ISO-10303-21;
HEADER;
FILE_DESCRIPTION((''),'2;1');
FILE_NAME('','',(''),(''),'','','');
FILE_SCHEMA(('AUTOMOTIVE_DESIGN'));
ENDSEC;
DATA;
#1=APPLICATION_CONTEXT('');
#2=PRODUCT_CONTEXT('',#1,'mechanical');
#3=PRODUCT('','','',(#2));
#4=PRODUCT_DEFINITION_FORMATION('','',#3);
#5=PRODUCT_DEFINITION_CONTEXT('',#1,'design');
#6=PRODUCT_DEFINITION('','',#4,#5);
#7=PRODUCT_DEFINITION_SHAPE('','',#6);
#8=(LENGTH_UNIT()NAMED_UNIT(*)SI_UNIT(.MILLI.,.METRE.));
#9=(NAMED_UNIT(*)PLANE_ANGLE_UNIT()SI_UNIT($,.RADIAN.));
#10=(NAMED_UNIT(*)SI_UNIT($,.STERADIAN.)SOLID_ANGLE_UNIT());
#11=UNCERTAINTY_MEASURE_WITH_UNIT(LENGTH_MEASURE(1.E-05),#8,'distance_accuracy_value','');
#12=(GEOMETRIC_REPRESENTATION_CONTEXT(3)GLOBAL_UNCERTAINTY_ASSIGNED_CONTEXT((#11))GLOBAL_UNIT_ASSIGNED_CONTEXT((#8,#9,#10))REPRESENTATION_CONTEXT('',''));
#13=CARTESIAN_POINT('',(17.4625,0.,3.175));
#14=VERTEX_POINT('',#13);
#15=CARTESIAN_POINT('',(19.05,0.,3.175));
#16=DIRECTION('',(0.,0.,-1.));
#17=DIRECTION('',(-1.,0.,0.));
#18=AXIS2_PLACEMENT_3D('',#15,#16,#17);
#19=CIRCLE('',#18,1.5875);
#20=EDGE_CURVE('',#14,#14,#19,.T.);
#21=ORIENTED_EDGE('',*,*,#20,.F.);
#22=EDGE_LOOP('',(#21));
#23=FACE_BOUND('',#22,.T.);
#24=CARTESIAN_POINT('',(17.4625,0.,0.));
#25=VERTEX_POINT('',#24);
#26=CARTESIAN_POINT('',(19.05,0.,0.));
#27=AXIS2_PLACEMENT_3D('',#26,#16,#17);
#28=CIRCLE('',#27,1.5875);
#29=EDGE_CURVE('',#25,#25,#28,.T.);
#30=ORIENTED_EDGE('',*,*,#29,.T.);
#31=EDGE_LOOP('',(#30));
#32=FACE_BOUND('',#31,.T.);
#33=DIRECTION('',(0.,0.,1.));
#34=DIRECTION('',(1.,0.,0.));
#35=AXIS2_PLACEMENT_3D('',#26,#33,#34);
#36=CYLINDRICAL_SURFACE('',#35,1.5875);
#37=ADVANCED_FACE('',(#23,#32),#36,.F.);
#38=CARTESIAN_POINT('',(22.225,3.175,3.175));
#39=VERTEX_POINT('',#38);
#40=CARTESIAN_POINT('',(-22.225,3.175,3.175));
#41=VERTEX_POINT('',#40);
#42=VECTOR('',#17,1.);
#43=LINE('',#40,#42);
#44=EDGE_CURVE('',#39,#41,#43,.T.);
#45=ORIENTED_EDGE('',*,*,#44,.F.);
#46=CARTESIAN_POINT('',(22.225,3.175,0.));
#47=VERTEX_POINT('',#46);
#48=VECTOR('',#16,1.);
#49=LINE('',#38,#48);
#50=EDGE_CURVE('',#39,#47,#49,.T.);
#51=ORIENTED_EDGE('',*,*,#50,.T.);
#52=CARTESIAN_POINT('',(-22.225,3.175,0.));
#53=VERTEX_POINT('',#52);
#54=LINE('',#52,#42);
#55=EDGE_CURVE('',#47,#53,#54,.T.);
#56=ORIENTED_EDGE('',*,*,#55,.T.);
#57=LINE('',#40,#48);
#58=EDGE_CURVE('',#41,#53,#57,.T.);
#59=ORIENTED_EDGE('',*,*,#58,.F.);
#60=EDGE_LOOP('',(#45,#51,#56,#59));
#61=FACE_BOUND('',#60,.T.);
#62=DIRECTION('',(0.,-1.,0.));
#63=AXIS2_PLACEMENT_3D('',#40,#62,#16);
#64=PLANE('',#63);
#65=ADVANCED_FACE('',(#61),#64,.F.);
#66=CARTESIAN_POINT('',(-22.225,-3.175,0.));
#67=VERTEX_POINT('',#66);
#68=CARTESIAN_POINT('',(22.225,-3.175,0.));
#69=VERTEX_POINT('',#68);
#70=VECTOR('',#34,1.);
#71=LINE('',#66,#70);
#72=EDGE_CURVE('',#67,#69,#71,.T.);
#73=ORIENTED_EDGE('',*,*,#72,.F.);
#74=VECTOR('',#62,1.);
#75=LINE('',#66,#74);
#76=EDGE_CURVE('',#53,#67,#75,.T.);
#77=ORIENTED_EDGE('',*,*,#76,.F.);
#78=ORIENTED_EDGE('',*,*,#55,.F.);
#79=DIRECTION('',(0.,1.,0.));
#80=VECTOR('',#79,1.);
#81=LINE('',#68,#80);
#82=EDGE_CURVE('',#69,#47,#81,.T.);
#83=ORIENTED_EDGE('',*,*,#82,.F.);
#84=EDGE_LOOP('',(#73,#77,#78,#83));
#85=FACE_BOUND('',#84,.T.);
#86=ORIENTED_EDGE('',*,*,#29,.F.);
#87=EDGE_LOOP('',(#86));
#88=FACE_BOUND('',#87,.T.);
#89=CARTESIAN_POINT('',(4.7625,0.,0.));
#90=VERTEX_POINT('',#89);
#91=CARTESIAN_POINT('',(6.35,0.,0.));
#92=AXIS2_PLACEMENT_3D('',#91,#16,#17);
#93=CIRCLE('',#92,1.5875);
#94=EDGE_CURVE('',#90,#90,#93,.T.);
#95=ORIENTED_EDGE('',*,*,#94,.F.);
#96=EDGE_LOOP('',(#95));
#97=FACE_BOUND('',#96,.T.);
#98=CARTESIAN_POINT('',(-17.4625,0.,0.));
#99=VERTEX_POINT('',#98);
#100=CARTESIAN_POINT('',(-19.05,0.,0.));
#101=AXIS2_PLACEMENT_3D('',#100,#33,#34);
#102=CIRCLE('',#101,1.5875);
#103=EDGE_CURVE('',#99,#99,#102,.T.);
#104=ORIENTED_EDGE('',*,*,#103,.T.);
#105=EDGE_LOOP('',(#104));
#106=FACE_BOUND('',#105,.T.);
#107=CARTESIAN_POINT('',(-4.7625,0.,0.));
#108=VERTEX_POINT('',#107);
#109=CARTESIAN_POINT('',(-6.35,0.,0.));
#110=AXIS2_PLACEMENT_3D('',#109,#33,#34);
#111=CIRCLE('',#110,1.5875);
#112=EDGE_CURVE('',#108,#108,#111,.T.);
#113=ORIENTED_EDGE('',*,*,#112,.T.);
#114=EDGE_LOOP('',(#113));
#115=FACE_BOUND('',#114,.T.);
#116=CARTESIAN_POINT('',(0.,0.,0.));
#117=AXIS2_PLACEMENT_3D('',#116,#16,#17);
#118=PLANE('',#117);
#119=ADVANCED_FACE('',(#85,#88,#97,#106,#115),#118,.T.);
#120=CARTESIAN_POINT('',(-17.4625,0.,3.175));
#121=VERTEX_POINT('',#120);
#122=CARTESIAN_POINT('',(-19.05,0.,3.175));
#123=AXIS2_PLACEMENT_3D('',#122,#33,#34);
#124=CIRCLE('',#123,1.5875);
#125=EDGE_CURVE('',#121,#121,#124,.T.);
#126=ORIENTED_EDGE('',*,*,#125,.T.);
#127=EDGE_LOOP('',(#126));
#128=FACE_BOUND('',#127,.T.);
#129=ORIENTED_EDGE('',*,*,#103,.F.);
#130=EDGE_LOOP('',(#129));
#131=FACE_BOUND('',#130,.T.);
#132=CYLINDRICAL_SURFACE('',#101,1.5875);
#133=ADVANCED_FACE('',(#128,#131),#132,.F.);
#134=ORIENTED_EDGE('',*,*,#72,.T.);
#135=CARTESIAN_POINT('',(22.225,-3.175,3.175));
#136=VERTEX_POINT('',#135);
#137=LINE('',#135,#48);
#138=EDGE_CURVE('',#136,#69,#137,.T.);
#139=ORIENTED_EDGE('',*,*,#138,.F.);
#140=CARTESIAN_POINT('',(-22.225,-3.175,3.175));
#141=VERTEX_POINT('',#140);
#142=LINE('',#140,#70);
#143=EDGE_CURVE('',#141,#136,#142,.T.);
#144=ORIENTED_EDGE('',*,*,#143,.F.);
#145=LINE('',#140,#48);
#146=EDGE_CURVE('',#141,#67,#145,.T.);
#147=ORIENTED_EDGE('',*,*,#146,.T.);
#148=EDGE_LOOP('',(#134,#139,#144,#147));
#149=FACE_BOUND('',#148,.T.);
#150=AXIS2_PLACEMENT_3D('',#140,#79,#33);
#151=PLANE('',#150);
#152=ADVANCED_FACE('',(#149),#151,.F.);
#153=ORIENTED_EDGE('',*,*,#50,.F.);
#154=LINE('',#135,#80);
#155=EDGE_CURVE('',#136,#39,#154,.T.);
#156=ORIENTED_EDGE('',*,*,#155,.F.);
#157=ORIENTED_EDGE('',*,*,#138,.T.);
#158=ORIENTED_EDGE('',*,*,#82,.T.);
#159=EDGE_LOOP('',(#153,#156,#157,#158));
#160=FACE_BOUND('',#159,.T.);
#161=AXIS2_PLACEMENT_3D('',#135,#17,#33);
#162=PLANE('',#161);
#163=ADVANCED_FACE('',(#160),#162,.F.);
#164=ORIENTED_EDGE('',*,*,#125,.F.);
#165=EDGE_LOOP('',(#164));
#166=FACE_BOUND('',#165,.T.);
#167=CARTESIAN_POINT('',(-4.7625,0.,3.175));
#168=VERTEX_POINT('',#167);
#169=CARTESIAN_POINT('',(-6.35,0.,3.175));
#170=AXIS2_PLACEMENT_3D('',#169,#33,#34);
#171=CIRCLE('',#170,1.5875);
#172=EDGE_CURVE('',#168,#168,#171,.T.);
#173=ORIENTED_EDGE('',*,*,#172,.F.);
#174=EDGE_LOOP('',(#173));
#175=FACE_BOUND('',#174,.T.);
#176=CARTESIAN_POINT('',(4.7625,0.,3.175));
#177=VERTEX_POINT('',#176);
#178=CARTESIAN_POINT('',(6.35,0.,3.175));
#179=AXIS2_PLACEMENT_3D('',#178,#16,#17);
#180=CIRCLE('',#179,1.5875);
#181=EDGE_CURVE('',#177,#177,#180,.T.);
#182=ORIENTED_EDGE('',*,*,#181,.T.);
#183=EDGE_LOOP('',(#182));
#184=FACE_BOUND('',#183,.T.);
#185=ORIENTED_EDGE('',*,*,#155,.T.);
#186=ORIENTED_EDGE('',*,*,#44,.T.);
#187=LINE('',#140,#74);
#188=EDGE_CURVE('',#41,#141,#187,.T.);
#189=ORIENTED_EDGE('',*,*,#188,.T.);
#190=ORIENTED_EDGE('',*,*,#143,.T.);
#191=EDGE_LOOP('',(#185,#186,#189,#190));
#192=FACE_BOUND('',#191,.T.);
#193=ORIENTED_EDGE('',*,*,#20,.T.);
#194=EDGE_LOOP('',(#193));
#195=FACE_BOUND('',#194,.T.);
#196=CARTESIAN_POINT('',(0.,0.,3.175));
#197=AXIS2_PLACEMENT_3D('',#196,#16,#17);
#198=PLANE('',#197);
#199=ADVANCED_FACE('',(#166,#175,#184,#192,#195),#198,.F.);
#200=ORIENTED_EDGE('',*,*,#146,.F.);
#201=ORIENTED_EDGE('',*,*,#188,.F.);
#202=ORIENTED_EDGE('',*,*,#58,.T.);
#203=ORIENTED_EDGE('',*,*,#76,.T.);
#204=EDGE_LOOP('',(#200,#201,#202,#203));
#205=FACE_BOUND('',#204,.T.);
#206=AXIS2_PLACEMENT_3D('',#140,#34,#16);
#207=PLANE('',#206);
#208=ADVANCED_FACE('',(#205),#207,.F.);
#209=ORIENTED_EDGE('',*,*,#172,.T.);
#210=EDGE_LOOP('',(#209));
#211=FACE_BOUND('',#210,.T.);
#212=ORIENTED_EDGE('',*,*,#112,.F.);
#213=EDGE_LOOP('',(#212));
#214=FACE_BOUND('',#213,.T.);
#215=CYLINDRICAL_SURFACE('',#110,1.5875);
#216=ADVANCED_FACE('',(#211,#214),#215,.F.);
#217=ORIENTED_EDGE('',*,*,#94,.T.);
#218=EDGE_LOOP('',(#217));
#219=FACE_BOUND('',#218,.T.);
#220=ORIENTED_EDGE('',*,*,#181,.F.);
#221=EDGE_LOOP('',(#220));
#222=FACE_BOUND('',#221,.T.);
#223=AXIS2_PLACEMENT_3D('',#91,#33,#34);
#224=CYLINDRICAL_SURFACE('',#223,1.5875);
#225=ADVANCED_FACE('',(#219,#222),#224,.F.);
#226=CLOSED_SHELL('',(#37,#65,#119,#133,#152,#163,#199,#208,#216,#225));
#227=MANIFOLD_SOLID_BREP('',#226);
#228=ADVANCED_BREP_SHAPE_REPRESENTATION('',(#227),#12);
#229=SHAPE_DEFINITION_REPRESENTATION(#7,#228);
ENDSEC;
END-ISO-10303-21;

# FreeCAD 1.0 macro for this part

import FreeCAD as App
import Part
import Sketcher
from FreeCAD import Vector
Q = App.Units.Quantity


def add_polygon(sketch, points):
    """Adds a closed chain of lines whose ends are joined by coincident constraints."""
    first, n = sketch.GeometryCount, len(points)
    for a, b in zip(points, points[1:] + points[:1]):
        sketch.addGeometry(Part.LineSegment(App.Vector(*a, 0), App.Vector(*b, 0)), False)
    for i in range(n):
        sketch.addConstraint(Sketcher.Constraint("Coincident", first + i, 2, first + (i + 1) % n, 1))

doc = App.newDocument("Part")
body = doc.addObject("PartDesign::Body", "Body")

sketch1 = body.newObject("Sketcher::SketchObject", "Sketch")
sketch1.AttachmentSupport = (doc.getObject("XY_Plane"), [""])
sketch1.MapMode = "FlatFace"
add_polygon(sketch1, [(-22, 3), (-22, -3), (22, -3), (22, 3)])
sketch1.addConstraint(Sketcher.Constraint("Vertical", 0))
sketch1.addConstraint(Sketcher.Constraint("Horizontal", 1))
sketch1.addConstraint(Sketcher.Constraint("Vertical", 2))
sketch1.addConstraint(Sketcher.Constraint("Horizontal", 3))
sketch1.addConstraint(Sketcher.Constraint("Symmetric", 0, 2, 2, 2, -1, 1))
sketch1.addConstraint(Sketcher.Constraint("DistanceX", 1, 1, 1, 2, Q("1.75 in")))
sketch1.addConstraint(Sketcher.Constraint("DistanceY", 0, 2, 0, 1, Q("0.25 in")))
pad1 = body.newObject("PartDesign::Pad", "Pad")
pad1.Profile = sketch1
pad1.Length = Q("0.125 in")

sketch2 = body.newObject("Sketcher::SketchObject", "Sketch001")
sketch2.AttachmentSupport = (doc.getObject("XY_Plane"), [""])
sketch2.MapMode = "FlatFace"
sketch2.AttachmentOffset = App.Placement(Vector(0, 0, 0.125 * 25.4), App.Rotation())
sketch2.addGeometry(Part.Circle(Vector(-6.3, 0, 0), Vector(0, 0, 1), 1.6), False)
sketch2.addGeometry(Part.Circle(Vector(-19.1, 0, 0), Vector(0, 0, 1), 1.6), False)
sketch2.addConstraint(Sketcher.Constraint("Equal", 0, 1))
sketch2.addConstraint(Sketcher.Constraint("PointOnObject", 0, 3, -1))
sketch2.addConstraint(Sketcher.Constraint("PointOnObject", 1, 3, -1))
sketch2.addConstraint(Sketcher.Constraint("Diameter", 0, Q("0.125 in")))
sketch2.addConstraint(Sketcher.Constraint("DistanceX", 1, 3, 0, 3, Q("0.5 in")))
sketch2.addConstraint(Sketcher.Constraint("DistanceX", 0, 3, -1, 1, Q("0.25 in")))
pocket1 = body.newObject("PartDesign::Pocket", "Pocket")
pocket1.Profile = sketch2
pocket1.Type = "ThroughAll"
doc.recompute()

mirrored = body.newObject("PartDesign::Mirrored", "Mirrored")
mirrored.Originals = [pocket1]
mirrored.MirrorPlane = (doc.getObject("YZ_Plane"), [""])
body.Tip = mirrored

doc.recompute()
